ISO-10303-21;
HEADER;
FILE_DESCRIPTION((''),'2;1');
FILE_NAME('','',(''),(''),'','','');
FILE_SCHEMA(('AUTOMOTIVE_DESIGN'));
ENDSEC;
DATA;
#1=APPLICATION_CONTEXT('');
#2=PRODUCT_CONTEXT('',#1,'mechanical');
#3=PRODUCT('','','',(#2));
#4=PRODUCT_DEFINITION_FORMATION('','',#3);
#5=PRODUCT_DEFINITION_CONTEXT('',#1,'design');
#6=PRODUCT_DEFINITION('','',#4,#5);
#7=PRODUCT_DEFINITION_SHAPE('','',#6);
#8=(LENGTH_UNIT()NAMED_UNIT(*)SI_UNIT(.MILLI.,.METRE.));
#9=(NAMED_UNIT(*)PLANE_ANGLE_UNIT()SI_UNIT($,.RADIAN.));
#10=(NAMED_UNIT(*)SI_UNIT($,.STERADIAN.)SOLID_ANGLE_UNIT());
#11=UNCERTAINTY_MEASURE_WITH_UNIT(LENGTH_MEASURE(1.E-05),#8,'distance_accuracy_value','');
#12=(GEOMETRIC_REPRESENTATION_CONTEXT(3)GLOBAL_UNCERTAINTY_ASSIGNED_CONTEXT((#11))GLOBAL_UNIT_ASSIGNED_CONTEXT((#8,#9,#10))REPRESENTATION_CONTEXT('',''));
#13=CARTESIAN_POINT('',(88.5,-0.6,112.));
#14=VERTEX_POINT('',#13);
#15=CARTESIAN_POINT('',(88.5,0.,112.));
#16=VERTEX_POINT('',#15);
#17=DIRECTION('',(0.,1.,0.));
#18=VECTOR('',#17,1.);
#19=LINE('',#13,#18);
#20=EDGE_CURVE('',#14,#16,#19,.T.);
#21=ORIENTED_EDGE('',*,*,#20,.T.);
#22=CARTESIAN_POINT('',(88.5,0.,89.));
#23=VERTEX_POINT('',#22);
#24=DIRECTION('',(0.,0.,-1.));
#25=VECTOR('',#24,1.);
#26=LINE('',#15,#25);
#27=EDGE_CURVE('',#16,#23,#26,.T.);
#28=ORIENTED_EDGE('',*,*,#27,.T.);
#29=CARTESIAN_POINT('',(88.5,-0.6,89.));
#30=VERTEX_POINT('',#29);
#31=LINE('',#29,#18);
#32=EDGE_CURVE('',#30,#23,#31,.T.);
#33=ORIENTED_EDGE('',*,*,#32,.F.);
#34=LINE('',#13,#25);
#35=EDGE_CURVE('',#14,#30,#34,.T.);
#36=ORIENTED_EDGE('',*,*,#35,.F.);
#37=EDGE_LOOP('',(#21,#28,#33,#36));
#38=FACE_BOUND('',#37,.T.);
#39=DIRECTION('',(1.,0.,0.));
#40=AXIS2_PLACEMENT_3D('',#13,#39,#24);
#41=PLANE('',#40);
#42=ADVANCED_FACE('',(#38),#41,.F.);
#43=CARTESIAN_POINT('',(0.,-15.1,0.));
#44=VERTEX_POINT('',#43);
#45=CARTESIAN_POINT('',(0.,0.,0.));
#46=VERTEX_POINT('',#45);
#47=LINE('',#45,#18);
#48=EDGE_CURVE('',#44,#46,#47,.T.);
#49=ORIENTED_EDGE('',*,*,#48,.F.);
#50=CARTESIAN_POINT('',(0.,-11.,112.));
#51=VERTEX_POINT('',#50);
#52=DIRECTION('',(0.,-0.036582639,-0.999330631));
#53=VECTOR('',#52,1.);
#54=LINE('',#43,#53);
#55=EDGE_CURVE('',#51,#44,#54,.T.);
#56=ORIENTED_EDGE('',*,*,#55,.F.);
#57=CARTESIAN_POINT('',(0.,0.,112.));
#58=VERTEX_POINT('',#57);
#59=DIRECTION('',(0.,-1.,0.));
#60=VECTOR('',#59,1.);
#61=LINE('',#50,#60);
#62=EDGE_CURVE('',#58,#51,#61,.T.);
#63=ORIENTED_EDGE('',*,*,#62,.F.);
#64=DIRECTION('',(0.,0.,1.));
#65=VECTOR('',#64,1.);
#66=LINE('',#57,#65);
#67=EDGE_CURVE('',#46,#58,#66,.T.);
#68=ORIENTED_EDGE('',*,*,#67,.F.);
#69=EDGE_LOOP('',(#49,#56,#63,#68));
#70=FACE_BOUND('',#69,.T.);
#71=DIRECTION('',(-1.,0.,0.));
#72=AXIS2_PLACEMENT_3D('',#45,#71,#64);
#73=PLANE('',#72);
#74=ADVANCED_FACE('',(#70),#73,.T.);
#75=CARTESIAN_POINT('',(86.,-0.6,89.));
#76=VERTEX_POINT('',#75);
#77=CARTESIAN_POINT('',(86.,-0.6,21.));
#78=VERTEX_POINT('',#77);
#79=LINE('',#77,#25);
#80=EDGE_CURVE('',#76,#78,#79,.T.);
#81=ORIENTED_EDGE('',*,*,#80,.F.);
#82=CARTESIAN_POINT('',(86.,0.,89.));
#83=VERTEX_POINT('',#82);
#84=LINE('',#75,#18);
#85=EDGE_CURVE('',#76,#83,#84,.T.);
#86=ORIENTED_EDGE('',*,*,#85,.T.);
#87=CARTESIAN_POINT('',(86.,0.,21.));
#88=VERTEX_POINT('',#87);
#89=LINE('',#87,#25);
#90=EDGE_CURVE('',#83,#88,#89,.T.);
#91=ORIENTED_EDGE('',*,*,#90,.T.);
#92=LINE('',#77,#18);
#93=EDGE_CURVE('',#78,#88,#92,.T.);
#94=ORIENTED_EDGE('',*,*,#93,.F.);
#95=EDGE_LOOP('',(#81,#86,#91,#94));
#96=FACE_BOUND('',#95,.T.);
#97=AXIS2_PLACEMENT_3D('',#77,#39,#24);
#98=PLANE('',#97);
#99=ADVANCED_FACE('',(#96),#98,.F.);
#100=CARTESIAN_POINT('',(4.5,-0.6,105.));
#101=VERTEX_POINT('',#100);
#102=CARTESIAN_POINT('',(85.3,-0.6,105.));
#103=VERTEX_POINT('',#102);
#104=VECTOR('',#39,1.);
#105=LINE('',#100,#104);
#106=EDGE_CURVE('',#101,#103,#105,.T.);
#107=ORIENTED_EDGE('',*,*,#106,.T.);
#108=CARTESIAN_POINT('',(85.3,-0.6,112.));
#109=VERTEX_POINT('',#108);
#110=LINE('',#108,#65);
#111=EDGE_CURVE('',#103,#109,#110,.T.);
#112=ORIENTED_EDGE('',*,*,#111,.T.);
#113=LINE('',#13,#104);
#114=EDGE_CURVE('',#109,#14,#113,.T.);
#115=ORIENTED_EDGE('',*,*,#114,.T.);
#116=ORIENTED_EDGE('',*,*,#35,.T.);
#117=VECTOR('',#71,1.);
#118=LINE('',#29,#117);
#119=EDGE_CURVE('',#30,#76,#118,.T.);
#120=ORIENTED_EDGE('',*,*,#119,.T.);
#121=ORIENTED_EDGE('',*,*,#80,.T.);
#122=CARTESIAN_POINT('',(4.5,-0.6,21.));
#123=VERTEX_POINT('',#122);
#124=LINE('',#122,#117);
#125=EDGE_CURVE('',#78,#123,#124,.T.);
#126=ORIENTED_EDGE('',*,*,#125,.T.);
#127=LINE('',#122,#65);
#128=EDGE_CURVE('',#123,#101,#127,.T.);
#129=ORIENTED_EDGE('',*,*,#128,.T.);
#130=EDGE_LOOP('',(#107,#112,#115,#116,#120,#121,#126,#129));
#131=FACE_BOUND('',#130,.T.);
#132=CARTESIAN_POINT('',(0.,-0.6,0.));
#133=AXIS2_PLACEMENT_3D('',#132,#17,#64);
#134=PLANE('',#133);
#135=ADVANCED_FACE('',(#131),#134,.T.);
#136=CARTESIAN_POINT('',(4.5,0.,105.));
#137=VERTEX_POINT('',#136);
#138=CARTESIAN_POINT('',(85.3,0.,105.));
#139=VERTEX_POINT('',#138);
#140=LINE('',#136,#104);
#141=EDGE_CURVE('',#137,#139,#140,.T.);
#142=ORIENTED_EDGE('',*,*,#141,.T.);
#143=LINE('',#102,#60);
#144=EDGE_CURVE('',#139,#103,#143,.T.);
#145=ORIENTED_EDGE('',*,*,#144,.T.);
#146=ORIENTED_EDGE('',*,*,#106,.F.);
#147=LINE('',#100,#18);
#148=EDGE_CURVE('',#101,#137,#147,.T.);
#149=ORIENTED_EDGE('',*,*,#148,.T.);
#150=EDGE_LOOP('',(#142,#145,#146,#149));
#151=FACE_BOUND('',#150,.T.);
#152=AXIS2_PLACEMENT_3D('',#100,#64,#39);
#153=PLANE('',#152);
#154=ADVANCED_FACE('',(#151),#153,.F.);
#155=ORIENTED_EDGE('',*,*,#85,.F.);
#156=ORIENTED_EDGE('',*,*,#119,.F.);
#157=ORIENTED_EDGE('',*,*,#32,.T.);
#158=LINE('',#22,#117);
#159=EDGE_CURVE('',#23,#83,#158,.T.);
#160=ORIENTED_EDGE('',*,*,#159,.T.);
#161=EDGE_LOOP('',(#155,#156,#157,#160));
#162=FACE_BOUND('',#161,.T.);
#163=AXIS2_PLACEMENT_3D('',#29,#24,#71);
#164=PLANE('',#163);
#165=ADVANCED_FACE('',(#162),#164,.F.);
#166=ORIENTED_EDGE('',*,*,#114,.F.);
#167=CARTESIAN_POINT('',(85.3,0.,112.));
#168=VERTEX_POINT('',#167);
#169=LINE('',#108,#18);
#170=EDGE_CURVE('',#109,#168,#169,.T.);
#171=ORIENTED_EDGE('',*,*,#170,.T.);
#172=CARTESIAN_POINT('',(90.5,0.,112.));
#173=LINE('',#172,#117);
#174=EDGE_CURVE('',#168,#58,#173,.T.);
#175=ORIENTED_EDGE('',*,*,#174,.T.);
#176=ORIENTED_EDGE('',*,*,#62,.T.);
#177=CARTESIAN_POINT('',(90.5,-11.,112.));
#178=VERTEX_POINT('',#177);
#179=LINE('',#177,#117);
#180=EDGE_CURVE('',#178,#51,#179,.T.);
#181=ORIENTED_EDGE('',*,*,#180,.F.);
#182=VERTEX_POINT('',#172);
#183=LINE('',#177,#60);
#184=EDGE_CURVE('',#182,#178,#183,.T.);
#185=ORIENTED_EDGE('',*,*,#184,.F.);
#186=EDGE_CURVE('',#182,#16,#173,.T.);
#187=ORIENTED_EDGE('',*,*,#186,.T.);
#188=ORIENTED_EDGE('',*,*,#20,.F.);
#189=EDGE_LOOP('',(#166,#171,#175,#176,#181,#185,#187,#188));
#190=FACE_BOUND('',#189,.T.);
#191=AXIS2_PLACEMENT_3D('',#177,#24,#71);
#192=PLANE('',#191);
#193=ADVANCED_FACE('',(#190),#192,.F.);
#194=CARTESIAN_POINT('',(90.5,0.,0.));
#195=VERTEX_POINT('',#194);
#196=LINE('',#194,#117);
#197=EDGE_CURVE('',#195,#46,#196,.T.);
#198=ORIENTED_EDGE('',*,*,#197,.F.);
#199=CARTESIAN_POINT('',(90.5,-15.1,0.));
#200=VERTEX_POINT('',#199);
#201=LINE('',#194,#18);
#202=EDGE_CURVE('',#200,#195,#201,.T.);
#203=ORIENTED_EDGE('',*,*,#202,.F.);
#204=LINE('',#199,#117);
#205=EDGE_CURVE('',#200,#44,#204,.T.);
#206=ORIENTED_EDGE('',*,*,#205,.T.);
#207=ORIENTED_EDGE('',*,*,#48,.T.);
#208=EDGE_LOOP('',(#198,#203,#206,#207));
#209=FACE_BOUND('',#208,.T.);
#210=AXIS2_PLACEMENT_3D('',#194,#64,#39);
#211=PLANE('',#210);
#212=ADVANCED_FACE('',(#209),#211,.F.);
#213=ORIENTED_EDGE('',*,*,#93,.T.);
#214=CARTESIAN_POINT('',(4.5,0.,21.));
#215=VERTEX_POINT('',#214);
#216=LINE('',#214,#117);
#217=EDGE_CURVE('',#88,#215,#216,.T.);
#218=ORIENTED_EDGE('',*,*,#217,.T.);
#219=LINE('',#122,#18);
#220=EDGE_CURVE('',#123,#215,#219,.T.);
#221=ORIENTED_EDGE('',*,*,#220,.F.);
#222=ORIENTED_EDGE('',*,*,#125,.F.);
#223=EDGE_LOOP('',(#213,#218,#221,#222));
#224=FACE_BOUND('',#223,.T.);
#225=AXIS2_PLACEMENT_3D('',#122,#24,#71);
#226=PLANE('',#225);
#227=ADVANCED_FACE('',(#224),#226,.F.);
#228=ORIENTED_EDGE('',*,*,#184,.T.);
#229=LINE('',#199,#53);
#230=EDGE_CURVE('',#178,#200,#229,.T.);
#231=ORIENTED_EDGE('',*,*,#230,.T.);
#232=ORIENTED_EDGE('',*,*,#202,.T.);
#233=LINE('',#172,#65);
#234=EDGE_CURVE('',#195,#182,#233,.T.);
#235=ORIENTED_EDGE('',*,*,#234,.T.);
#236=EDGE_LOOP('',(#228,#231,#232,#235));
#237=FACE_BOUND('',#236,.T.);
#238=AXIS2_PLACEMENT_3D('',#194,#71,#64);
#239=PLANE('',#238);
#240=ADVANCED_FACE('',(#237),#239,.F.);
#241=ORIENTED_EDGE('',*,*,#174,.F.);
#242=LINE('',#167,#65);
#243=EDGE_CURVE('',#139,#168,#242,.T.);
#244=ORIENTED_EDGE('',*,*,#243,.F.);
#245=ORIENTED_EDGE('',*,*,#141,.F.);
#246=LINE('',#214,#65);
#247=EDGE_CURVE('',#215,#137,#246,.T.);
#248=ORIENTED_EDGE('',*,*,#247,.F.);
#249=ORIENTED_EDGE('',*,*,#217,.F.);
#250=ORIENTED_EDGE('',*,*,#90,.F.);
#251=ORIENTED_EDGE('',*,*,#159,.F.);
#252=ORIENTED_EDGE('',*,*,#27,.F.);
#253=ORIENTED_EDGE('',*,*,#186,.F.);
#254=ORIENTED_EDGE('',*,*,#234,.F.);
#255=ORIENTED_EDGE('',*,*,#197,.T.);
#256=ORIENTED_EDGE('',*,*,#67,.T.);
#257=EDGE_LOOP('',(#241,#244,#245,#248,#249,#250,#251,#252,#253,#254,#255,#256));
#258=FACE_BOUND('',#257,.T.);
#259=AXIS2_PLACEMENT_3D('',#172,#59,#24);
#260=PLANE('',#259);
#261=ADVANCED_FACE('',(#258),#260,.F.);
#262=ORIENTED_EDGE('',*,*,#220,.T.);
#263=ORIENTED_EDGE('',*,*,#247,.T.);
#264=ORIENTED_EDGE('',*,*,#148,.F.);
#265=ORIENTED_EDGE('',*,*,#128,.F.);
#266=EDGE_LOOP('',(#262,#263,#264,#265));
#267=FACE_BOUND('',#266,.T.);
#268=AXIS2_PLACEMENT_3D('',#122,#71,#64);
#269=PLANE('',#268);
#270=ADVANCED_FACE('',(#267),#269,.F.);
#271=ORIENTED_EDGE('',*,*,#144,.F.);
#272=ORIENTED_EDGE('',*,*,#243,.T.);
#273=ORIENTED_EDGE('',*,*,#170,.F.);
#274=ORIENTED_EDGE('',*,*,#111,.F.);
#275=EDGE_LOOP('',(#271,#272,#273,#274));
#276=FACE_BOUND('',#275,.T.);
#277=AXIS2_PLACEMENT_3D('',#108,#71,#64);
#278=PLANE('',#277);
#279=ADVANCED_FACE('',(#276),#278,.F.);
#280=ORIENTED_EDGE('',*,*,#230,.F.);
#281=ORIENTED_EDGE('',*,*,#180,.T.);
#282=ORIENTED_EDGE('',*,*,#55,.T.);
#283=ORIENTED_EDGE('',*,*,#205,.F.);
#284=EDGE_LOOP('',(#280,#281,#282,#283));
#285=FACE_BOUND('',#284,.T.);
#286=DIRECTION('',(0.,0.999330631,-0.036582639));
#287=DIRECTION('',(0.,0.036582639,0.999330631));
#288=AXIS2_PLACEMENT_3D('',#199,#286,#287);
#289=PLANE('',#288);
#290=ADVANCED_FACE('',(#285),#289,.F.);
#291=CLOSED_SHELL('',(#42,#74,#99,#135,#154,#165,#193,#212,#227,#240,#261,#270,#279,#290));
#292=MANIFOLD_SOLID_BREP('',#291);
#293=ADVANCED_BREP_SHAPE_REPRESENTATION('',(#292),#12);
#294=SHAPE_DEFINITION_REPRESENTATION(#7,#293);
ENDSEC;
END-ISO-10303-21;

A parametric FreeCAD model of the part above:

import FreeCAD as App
import Part
import Sketcher
Q = App.Units.Quantity

doc = App.newDocument("Part")
body = doc.addObject("PartDesign::Body", "Body")

# Sketch on YZ plane
sketch1 = body.newObject("Sketcher::SketchObject", "Sketch")
sketch1.AttachmentSupport = (doc.getObject("YZ_Plane"), [""])
sketch1.MapMode = "FlatFace"
sketch1.addGeometry([
    Part.LineSegment(App.Vector(-15, 0, 0), App.Vector(0, 0, 0)),
    Part.LineSegment(App.Vector(0, 0, 0), App.Vector(0, 112, 0)),
    Part.LineSegment(App.Vector(0, 112, 0), App.Vector(-11, 112, 0)),
    Part.LineSegment(App.Vector(-11, 112, 0), App.Vector(-15, 0, 0)),
], False)
sketch1.addConstraint([
    Sketcher.Constraint("Coincident", 0, 2, 1, 1),
    Sketcher.Constraint("Coincident", 1, 2, 2, 1),
    Sketcher.Constraint("Coincident", 2, 2, 3, 1),
    Sketcher.Constraint("Coincident", 3, 2, 0, 1),
    Sketcher.Constraint("Horizontal", 0),
    Sketcher.Constraint("Vertical", 1),
    Sketcher.Constraint("Horizontal", 2),
    Sketcher.Constraint("Coincident", 0, 2, -1, 1),
    Sketcher.Constraint("DistanceX", 2, 2, 2, 1, Q("11 mm")),
    Sketcher.Constraint("DistanceY", 1, 1, 1, 2, Q("112 mm")),
    Sketcher.Constraint("DistanceX", 0, 1, 0, 2, Q("15.1 mm")),
])
pad1 = body.newObject("PartDesign::Pad", "Pad")
pad1.Profile = sketch1
pad1.Length = 90.5

# Sketch on XZ plane
sketch2 = body.newObject("Sketcher::SketchObject", "Sketch001")
sketch2.AttachmentSupport = (doc.getObject("XZ_Plane"), [""])
sketch2.MapMode = "FlatFace"
sketch2.addGeometry([
    Part.LineSegment(App.Vector(4, 21, 0), App.Vector(4, 105, 0)),
    Part.LineSegment(App.Vector(4, 105, 0), App.Vector(86, 105, 0)),
    Part.LineSegment(App.Vector(86, 105, 0), App.Vector(86, 21, 0)),
    Part.LineSegment(App.Vector(86, 21, 0), App.Vector(4, 21, 0)),
], False)
sketch2.addConstraint([
    Sketcher.Constraint("Coincident", 0, 2, 1, 1),
    Sketcher.Constraint("Coincident", 1, 2, 2, 1),
    Sketcher.Constraint("Coincident", 2, 2, 3, 1),
    Sketcher.Constraint("Coincident", 3, 2, 0, 1),
    Sketcher.Constraint("Vertical", 0),
    Sketcher.Constraint("Horizontal", 1),
    Sketcher.Constraint("Vertical", 2),
    Sketcher.Constraint("Horizontal", 3),
    Sketcher.Constraint("DistanceY", 0, 1, 0, 2, Q("84 mm")),
    Sketcher.Constraint("DistanceX", 1, 1, 1, 2, Q("81.5 mm")),
    Sketcher.Constraint("DistanceY", -1, 1, 0, 2, Q("105 mm")),
    Sketcher.Constraint("DistanceX", -1, 1, 1, 2, Q("86 mm")),
])
pocket1 = body.newObject("PartDesign::Pocket", "Pocket")
pocket1.Profile = sketch2
pocket1.Length = 0.6
pocket1.Reversed = True

# Sketch on XZ plane
sketch3 = body.newObject("Sketcher::SketchObject", "Sketch002")
sketch3.AttachmentSupport = (doc.getObject("XZ_Plane"), [""])
sketch3.MapMode = "FlatFace"
sketch3.addGeometry([
    Part.LineSegment(App.Vector(85.3, 89, 0), App.Vector(85.3, 112, 0)),
    Part.LineSegment(App.Vector(85.3, 112, 0), App.Vector(88.5, 112, 0)),
    Part.LineSegment(App.Vector(88.5, 112, 0), App.Vector(88.5, 89, 0)),
    Part.LineSegment(App.Vector(88.5, 89, 0), App.Vector(85.3, 89, 0)),
], False)
sketch3.addConstraint([
    Sketcher.Constraint("Coincident", 0, 2, 1, 1),
    Sketcher.Constraint("Coincident", 1, 2, 2, 1),
    Sketcher.Constraint("Coincident", 2, 2, 3, 1),
    Sketcher.Constraint("Coincident", 3, 2, 0, 1),
    Sketcher.Constraint("Vertical", 0),
    Sketcher.Constraint("Horizontal", 1),
    Sketcher.Constraint("Vertical", 2),
    Sketcher.Constraint("Horizontal", 3),
    Sketcher.Constraint("DistanceY", 0, 1, 0, 2, Q("23 mm")),
    Sketcher.Constraint("DistanceX", 1, 1, 1, 2, Q("3.2 mm")),
    Sketcher.Constraint("DistanceY", -1, 1, 0, 2, Q("112 mm")),
    Sketcher.Constraint("DistanceX", -1, 1, 0, 2, Q("85.3 mm")),
])
pocket2 = body.newObject("PartDesign::Pocket", "Pocket001")
pocket2.Profile = sketch3
pocket2.Length = 0.6
pocket2.Reversed = True

doc.recompute()
